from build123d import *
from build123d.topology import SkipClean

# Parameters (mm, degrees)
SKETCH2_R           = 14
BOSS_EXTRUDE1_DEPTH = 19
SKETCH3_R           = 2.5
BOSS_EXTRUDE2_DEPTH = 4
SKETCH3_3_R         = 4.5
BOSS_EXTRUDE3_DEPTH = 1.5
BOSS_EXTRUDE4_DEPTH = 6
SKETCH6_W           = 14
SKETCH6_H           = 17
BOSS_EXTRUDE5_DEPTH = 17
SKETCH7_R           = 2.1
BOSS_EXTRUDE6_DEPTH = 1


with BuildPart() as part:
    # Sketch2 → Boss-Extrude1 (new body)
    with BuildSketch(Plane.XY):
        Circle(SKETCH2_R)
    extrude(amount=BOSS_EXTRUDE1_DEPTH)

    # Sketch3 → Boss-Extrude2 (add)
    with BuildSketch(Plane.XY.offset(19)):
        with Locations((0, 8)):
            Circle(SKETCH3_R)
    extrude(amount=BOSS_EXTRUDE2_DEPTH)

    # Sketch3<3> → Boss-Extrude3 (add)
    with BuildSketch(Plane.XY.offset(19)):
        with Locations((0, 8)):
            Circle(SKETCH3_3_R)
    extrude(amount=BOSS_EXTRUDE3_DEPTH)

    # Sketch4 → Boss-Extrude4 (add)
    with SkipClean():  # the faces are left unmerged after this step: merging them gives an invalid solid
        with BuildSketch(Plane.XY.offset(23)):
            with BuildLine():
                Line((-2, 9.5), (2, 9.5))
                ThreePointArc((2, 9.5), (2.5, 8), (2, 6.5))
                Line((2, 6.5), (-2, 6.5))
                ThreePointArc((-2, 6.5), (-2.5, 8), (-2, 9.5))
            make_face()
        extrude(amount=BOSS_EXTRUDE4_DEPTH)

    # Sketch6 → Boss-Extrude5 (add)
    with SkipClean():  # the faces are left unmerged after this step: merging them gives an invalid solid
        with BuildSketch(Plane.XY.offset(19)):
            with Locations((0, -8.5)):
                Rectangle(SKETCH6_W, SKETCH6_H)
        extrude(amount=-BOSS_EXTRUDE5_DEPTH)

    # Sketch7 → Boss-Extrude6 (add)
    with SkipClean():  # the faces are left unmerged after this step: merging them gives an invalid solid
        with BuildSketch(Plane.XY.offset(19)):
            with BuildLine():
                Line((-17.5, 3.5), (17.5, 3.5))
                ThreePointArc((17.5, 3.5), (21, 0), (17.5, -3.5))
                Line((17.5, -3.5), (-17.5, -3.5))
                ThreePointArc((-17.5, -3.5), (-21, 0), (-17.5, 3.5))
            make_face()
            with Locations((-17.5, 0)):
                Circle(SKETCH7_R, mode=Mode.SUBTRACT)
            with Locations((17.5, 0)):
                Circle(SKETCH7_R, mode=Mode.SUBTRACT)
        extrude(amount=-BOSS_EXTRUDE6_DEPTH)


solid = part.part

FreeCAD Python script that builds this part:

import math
import FreeCAD as App
import Part
import Sketcher

V = App.Vector

doc = App.newDocument("Part")
body = doc.addObject("PartDesign::Body", "Body")

# Sketch on XY plane
sketch1 = body.newObject("Sketcher::SketchObject", "Sketch")
sketch1.AttachmentSupport = (doc.getObject("XY_Plane"), [""])
sketch1.MapMode = "FlatFace"
sketch1.addGeometry(Part.Circle(V(0, 0, 0), V(0, 0, 1), 14), False)
sketch1.addConstraint([
    Sketcher.Constraint("Coincident", 0, 3, -1, 1),
    Sketcher.Constraint("Diameter", 0, 28.0),
])
pad1 = body.newObject("PartDesign::Pad", "Pad")
pad1.Profile = sketch1
pad1.Length = 19

# Sketch on XY plane
sketch2 = body.newObject("Sketcher::SketchObject", "Sketch001")
sketch2.AttachmentSupport = (doc.getObject("XY_Plane"), [""])
sketch2.MapMode = "FlatFace"
sketch2.AttachmentOffset = App.Placement(V(0, 0, 19), App.Rotation())
sketch2.addGeometry(Part.Circle(V(0, 8, 0), V(0, 0, 1), 2.5), False)
sketch2.addConstraint([
    Sketcher.Constraint("PointOnObject", 0, 3, -2),
    Sketcher.Constraint("Diameter", 0, 5.0),
    Sketcher.Constraint("DistanceY", -1, 1, 0, 3, 8.0),
])
pad2 = body.newObject("PartDesign::Pad", "Pad001")
pad2.Profile = sketch2
pad2.Length = 4

# Sketch on XY plane
sketch3 = body.newObject("Sketcher::SketchObject", "Sketch002")
sketch3.AttachmentSupport = (doc.getObject("XY_Plane"), [""])
sketch3.MapMode = "FlatFace"
sketch3.AttachmentOffset = App.Placement(V(0, 0, 19), App.Rotation())
sketch3.addGeometry(Part.Circle(V(0, 8, 0), V(0, 0, 1), 4.5), False)
sketch3.addConstraint([
    Sketcher.Constraint("PointOnObject", 0, 3, -2),
    Sketcher.Constraint("Diameter", 0, 9.0),
    Sketcher.Constraint("DistanceY", -1, 1, 0, 3, 8.0),
])
pad3 = body.newObject("PartDesign::Pad", "Pad002")
pad3.Profile = sketch3
pad3.Length = 1.5

# Sketch on XY plane
sketch4 = body.newObject("Sketcher::SketchObject", "Sketch003")
sketch4.AttachmentSupport = (doc.getObject("XY_Plane"), [""])
sketch4.MapMode = "FlatFace"
sketch4.AttachmentOffset = App.Placement(V(0, 0, 23), App.Rotation())
sketch4.addGeometry([
    Part.LineSegment(V(2, 9.5, 0), V(-2, 9.5, 0)),
    Part.ArcOfCircle(Part.Circle(V(0, 8, 0), V(0, 0, 1), 2.5), math.radians(143.130102), math.radians(216.869898)),
    Part.LineSegment(V(-2, 6.5, 0), V(2, 6.5, 0)),
    Part.ArcOfCircle(Part.Circle(V(0, 8, 0), V(0, 0, 1), 2.5), math.radians(-36.869898), math.radians(36.869898)),
], False)
sketch4.addConstraint([
    Sketcher.Constraint("Coincident", 0, 2, 1, 1),
    Sketcher.Constraint("Coincident", 1, 2, 2, 1),
    Sketcher.Constraint("Coincident", 2, 2, 3, 1),
    Sketcher.Constraint("Coincident", 3, 2, 0, 1),
    Sketcher.Constraint("Horizontal", 0),
    Sketcher.Constraint("Horizontal", 2),
    Sketcher.Constraint("Coincident", 3, 3, 1, 3),
    Sketcher.Constraint("Equal", 1, 3),
    Sketcher.Constraint("PointOnObject", 1, 3, -2),
    Sketcher.Constraint("Vertical", 0, 2, 1, 2),
    Sketcher.Constraint("Radius", 1, 2.5),
    Sketcher.Constraint("DistanceX", 0, 2, 0, 1, 4.0),
    Sketcher.Constraint("DistanceY", -1, 1, 1, 3, 8.0),
])
pad4 = body.newObject("PartDesign::Pad", "Pad003")
pad4.Profile = sketch4
pad4.Length = 6

# Sketch on XY plane
sketch5 = body.newObject("Sketcher::SketchObject", "Sketch004")
sketch5.AttachmentSupport = (doc.getObject("XY_Plane"), [""])
sketch5.MapMode = "FlatFace"
sketch5.AttachmentOffset = App.Placement(V(0, 0, 19), App.Rotation())
sketch5.addGeometry([
    Part.LineSegment(V(-7, 0, 0), V(-7, -17, 0)),
    Part.LineSegment(V(-7, -17, 0), V(7, -17, 0)),
    Part.LineSegment(V(7, -17, 0), V(7, 0, 0)),
    Part.LineSegment(V(7, 0, 0), V(-7, 0, 0)),
], False)
sketch5.addConstraint([
    Sketcher.Constraint("Coincident", 0, 2, 1, 1),
    Sketcher.Constraint("Coincident", 1, 2, 2, 1),
    Sketcher.Constraint("Coincident", 2, 2, 3, 1),
    Sketcher.Constraint("Coincident", 3, 2, 0, 1),
    Sketcher.Constraint("Vertical", 0),
    Sketcher.Constraint("Horizontal", 1),
    Sketcher.Constraint("Vertical", 2),
    Sketcher.Constraint("Horizontal", 3),
    Sketcher.Constraint("Symmetric", 2, 2, 3, 2, -1, 1),
    Sketcher.Constraint("DistanceX", 1, 1, 1, 2, 14.0),
    Sketcher.Constraint("DistanceY", 0, 2, 0, 1, 17.0),
])
pad5 = body.newObject("PartDesign::Pad", "Pad004")
pad5.Profile = sketch5
pad5.Length = 17
pad5.Reversed = True

# Sketch on XY plane
sketch6 = body.newObject("Sketcher::SketchObject", "Sketch005")
sketch6.AttachmentSupport = (doc.getObject("XY_Plane"), [""])
sketch6.MapMode = "FlatFace"
sketch6.AttachmentOffset = App.Placement(V(0, 0, 19), App.Rotation())
sketch6.addGeometry([
    Part.LineSegment(V(17.5, 3.5, 0), V(-17.5, 3.5, 0)),  # 0
    Part.ArcOfCircle(Part.Circle(V(-17.5, 0, 0), V(0, 0, 1), 3.5), math.radians(90), math.radians(270)),  # 1
    Part.LineSegment(V(-17.5, -3.5, 0), V(17.5, -3.5, 0)),  # 2
    Part.ArcOfCircle(Part.Circle(V(17.5, 0, 0), V(0, 0, 1), 3.5), math.radians(-90), math.radians(90)),  # 3
    Part.Circle(V(17.5, 0, 0), V(0, 0, 1), 2.1),  # 4
    Part.Circle(V(-17.5, 0, 0), V(0, 0, 1), 2.1),  # 5
], False)
sketch6.addConstraint([
    Sketcher.Constraint("Tangent", 0, 2, 1, 1),
    Sketcher.Constraint("Tangent", 1, 2, 2, 1),
    Sketcher.Constraint("Tangent", 2, 2, 3, 1),
    Sketcher.Constraint("Tangent", 3, 2, 0, 1),
    Sketcher.Constraint("Horizontal", 0),
    Sketcher.Constraint("Horizontal", 2),
    Sketcher.Constraint("Coincident", 4, 3, 3, 3),
    Sketcher.Constraint("Coincident", 5, 3, 1, 3),
    Sketcher.Constraint("Equal", 4, 5),
    Sketcher.Constraint("Symmetric", 1, 3, 3, 3, -1, 1),
    Sketcher.Constraint("Diameter", 4, 4.2),
    Sketcher.Constraint("Radius", 1, 3.5),
    Sketcher.Constraint("DistanceX", 0, 2, 0, 1, 35.0),
])
pad6 = body.newObject("PartDesign::Pad", "Pad005")
pad6.Profile = sketch6
pad6.Length = 1
pad6.Reversed = True

doc.recompute()
